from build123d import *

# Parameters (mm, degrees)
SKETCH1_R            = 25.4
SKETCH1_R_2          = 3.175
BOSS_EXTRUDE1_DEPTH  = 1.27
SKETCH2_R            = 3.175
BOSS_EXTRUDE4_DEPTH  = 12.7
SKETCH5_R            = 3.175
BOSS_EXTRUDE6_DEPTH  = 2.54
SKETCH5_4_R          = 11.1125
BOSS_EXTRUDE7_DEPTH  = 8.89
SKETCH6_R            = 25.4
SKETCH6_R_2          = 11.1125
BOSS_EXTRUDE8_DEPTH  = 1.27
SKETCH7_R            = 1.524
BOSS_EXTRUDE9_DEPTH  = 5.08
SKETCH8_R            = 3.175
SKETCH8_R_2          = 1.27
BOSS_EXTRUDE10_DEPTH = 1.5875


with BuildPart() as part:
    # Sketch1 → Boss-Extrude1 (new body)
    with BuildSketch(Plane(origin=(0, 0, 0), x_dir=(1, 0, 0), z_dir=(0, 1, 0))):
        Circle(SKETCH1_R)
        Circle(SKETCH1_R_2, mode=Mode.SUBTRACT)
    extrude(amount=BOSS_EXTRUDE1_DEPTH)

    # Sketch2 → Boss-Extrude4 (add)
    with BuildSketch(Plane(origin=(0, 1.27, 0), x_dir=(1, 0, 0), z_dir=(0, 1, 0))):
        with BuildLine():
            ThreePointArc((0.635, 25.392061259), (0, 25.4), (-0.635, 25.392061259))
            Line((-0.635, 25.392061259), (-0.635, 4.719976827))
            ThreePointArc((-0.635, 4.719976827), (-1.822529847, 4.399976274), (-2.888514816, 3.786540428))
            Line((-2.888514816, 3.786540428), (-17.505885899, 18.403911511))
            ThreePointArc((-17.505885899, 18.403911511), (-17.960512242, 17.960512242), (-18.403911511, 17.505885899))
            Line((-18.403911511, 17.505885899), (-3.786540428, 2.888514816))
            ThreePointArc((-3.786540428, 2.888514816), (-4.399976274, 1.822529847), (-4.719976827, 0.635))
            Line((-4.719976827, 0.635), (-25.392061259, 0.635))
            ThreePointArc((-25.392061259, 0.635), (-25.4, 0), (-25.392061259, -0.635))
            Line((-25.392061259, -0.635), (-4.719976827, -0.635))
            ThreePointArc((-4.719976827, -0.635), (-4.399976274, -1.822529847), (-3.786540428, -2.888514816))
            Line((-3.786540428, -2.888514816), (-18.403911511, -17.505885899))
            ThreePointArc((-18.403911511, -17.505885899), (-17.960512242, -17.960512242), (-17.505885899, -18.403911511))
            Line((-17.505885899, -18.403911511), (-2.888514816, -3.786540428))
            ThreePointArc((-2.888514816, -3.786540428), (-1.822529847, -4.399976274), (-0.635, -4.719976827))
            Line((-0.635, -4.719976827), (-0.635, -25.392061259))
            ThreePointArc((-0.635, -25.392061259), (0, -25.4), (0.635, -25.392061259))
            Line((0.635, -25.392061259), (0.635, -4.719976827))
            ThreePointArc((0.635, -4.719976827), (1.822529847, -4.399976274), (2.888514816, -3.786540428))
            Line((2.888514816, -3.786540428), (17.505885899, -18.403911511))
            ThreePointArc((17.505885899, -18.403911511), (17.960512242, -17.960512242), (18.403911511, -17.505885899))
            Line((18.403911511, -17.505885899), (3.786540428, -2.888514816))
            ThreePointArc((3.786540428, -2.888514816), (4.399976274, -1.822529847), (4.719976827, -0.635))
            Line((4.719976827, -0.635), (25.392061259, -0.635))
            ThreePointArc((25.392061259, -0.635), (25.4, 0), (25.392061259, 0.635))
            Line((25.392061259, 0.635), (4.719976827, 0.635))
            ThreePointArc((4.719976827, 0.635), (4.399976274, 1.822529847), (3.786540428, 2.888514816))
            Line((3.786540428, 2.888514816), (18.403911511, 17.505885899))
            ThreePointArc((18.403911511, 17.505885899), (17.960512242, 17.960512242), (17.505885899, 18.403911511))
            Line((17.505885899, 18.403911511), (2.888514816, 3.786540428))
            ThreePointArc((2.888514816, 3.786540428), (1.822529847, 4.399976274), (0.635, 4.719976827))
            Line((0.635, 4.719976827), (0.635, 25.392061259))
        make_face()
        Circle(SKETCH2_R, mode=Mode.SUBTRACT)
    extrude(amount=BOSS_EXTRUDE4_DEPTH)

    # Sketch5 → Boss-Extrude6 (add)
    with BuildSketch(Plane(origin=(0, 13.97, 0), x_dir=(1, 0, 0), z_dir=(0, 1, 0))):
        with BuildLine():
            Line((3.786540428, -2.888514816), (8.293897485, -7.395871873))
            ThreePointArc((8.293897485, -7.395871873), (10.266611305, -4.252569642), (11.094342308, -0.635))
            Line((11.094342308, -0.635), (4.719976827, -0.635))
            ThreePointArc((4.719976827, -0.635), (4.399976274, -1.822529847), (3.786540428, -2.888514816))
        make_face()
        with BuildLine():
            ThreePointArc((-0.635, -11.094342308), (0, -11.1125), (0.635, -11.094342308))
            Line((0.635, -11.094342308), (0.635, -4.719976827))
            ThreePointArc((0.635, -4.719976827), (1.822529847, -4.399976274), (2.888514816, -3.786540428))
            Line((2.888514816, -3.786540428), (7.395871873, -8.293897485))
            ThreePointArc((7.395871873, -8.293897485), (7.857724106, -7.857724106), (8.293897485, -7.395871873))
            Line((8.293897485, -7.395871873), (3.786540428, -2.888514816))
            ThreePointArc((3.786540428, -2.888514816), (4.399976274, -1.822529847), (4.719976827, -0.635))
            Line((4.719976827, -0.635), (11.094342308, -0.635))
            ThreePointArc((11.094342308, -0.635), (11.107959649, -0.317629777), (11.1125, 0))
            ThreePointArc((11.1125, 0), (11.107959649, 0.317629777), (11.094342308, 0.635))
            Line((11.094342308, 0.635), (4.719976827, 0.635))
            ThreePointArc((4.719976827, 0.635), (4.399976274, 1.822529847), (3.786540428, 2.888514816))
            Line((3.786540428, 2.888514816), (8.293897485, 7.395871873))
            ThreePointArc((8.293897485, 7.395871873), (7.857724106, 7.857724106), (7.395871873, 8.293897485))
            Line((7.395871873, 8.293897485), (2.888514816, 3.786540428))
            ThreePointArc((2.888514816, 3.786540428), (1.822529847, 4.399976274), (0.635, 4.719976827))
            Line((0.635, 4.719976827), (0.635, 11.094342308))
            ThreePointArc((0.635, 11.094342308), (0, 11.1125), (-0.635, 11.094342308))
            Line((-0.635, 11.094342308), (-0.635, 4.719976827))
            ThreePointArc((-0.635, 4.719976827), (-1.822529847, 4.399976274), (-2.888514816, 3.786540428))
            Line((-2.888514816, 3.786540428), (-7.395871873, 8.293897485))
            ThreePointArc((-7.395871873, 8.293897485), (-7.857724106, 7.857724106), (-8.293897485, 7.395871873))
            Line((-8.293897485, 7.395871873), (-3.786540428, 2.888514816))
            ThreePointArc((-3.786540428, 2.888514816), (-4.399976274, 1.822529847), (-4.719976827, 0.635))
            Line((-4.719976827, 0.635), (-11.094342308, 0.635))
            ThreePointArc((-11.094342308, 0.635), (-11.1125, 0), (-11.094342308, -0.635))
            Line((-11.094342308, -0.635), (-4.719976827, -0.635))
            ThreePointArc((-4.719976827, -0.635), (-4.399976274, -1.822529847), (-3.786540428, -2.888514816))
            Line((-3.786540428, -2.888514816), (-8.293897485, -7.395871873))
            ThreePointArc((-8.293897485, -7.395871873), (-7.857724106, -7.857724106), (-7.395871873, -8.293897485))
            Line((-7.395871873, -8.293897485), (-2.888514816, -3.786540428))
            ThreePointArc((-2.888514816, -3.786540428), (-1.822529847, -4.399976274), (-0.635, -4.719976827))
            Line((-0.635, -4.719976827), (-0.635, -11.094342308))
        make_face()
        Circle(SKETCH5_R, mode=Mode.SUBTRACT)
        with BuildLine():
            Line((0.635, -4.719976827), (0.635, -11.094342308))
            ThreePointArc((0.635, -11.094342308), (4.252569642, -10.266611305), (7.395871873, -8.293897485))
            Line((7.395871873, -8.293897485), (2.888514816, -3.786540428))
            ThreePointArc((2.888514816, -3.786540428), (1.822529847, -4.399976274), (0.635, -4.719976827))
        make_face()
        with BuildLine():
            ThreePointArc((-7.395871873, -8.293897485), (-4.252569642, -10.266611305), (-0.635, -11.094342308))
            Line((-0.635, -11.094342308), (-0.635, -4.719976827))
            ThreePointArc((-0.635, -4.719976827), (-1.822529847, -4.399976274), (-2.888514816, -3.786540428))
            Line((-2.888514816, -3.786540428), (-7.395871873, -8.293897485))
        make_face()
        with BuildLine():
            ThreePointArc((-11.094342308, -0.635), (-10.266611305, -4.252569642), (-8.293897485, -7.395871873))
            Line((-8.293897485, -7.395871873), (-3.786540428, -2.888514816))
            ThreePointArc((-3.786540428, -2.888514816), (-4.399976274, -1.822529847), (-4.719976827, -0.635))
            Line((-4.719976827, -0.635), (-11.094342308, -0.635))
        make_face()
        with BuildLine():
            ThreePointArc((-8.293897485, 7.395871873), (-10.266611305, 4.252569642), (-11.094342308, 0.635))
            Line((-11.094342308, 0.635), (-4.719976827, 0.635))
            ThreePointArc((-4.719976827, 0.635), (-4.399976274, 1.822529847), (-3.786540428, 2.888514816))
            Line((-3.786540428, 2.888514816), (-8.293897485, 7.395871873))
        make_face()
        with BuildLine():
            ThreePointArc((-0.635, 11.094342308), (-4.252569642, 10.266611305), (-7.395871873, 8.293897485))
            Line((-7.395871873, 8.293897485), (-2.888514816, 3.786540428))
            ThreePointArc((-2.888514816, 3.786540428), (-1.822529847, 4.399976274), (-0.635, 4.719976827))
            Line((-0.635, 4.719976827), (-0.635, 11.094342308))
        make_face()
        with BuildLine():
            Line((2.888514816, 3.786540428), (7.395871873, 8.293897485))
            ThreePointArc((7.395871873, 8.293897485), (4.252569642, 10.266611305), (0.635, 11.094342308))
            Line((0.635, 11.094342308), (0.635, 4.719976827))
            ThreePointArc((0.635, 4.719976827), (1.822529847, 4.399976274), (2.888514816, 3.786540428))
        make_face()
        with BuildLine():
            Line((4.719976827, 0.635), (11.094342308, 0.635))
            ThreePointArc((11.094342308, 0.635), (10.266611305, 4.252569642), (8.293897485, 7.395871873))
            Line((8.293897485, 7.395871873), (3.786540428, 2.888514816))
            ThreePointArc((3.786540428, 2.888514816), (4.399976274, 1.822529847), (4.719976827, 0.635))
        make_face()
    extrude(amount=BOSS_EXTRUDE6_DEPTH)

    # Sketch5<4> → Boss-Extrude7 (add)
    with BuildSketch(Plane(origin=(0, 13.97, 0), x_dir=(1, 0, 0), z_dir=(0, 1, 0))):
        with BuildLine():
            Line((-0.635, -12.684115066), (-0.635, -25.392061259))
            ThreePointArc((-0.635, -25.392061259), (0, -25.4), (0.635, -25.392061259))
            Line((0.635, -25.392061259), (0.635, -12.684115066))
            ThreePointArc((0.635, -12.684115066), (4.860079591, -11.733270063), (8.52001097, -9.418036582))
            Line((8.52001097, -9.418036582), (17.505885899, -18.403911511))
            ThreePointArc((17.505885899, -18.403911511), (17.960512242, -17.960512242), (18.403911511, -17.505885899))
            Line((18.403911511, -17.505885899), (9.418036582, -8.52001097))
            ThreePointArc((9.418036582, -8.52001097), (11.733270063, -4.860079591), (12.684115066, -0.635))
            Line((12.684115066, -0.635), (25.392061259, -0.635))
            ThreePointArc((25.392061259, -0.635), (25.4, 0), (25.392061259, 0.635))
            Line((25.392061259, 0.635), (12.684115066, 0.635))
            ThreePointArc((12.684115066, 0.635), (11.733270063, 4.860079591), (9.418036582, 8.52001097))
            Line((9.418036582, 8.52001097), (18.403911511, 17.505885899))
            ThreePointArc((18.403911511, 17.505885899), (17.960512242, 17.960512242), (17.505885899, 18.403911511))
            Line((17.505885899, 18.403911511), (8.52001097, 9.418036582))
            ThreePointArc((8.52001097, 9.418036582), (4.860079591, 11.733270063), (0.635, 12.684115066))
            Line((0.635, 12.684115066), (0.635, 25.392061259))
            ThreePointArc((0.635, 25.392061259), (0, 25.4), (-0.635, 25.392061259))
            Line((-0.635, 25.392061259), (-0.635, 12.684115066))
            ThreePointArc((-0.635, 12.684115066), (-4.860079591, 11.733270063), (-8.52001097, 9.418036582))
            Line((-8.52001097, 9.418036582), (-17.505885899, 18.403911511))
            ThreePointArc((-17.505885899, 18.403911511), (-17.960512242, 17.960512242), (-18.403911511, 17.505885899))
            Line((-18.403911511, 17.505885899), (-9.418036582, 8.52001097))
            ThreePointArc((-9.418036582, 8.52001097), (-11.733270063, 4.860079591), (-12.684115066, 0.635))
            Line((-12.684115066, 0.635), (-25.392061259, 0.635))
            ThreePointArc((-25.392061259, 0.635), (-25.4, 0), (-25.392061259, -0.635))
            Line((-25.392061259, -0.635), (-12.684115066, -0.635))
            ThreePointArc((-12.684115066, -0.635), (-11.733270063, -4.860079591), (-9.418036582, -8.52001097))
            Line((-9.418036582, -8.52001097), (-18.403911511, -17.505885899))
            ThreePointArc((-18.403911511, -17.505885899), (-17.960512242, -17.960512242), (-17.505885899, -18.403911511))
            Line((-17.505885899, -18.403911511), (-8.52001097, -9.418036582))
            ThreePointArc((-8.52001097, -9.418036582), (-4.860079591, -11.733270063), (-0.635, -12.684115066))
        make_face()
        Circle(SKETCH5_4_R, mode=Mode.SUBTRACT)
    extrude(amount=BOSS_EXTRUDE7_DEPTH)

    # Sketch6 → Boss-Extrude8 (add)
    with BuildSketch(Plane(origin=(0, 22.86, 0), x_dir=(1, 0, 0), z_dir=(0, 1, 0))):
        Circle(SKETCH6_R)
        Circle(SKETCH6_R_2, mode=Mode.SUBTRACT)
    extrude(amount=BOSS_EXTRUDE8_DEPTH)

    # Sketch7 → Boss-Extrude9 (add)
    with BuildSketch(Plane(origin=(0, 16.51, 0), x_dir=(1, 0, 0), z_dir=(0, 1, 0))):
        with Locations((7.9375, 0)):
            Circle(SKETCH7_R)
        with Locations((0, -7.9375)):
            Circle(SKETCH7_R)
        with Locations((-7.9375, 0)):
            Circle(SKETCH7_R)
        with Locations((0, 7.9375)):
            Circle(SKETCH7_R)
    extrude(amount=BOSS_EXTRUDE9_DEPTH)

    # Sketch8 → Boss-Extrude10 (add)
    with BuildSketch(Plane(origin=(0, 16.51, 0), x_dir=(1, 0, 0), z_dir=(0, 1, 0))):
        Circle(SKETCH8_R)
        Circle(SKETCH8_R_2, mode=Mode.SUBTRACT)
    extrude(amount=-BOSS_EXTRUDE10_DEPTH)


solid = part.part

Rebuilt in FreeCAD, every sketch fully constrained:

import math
import FreeCAD as App
import Part
import Sketcher
from FreeCAD import Vector
Q = App.Units.Quantity

doc = App.newDocument("Part")
body = doc.addObject("PartDesign::Body", "Body")

sketch1 = body.newObject("Sketcher::SketchObject", "Sketch")
sketch1.AttachmentSupport = (doc.getObject("XZ_Plane"), [""])
sketch1.MapMode = "FlatFace"
sketch1.addGeometry(Part.Circle(Vector(0, 0, 0), Vector(0, 0, 1), 25.4), False)
sketch1.addGeometry(Part.Circle(Vector(0, 0, 0), Vector(0, 0, 1), 3.2), False)
sketch1.addConstraint(Sketcher.Constraint("Coincident", 0, 3, -1, 1))
sketch1.addConstraint(Sketcher.Constraint("Coincident", 1, 3, -1, 1))
sketch1.addConstraint(Sketcher.Constraint("Diameter", 0, Q("2 in")))
sketch1.addConstraint(Sketcher.Constraint("Diameter", 1, Q("0.25 in")))
pad1 = body.newObject("PartDesign::Pad", "Pad")
pad1.Profile = sketch1
pad1.Length = Q("0.05 in")
pad1.Reversed = True

sketch2 = body.newObject("Sketcher::SketchObject", "Sketch001")
sketch2.AttachmentSupport = (doc.getObject("XZ_Plane"), [""])
sketch2.MapMode = "FlatFace"
sketch2.AttachmentOffset = App.Placement(Vector(0, 0, -0.05 * 25.4), App.Rotation())
sketch2.addGeometry(Part.ArcOfCircle(Part.Circle(Vector(0, 0, 0), Vector(0, 0, 1), 25.4), math.radians(-91.43), math.radians(-88.57)), False)
sketch2.addGeometry(Part.LineSegment(Vector(-0.6, -25.4, 0), Vector(-0.6, -4.7, 0)), False)
sketch2.addGeometry(Part.ArcOfCircle(Part.Circle(Vector(0, 0, 0), Vector(0, 0, 1), 4.8), math.radians(-127), math.radians(-98)), False)
sketch2.addGeometry(Part.LineSegment(Vector(-2.9, -3.8, 0), Vector(-17.5, -18.4, 0)), False)
sketch2.addGeometry(Part.ArcOfCircle(Part.Circle(Vector(0, 0, 0), Vector(0, 0, 1), 25.4), math.radians(-136.43), math.radians(-133.57)), False)
sketch2.addGeometry(Part.LineSegment(Vector(-18.4, -17.5, 0), Vector(-3.8, -2.9, 0)), False)
sketch2.addGeometry(Part.ArcOfCircle(Part.Circle(Vector(0, 0, 0), Vector(0, 0, 1), 4.8), math.radians(-172), math.radians(-143)), False)
sketch2.addGeometry(Part.LineSegment(Vector(-4.7, -0.6, 0), Vector(-25.4, -0.6, 0)), False)
sketch2.addGeometry(Part.ArcOfCircle(Part.Circle(Vector(0, 0, 0), Vector(0, 0, 1), 25.4), math.radians(178.57), math.radians(181.43)), False)
sketch2.addGeometry(Part.LineSegment(Vector(-25.4, 0.6, 0), Vector(-4.7, 0.6, 0)), False)
sketch2.addGeometry(Part.ArcOfCircle(Part.Circle(Vector(0, 0, 0), Vector(0, 0, 1), 4.8), math.radians(143), math.radians(172)), False)
sketch2.addGeometry(Part.LineSegment(Vector(-3.8, 2.9, 0), Vector(-18.4, 17.5, 0)), False)
sketch2.addGeometry(Part.ArcOfCircle(Part.Circle(Vector(0, 0, 0), Vector(0, 0, 1), 25.4), math.radians(133.57), math.radians(136.43)), False)
sketch2.addGeometry(Part.LineSegment(Vector(-17.5, 18.4, 0), Vector(-2.9, 3.8, 0)), False)
sketch2.addGeometry(Part.ArcOfCircle(Part.Circle(Vector(0, 0, 0), Vector(0, 0, 1), 4.8), math.radians(98), math.radians(127)), False)
sketch2.addGeometry(Part.LineSegment(Vector(-0.6, 4.7, 0), Vector(-0.6, 25.4, 0)), False)
sketch2.addGeometry(Part.ArcOfCircle(Part.Circle(Vector(0, 0, 0), Vector(0, 0, 1), 25.4), math.radians(88.57), math.radians(91.43)), False)
sketch2.addGeometry(Part.LineSegment(Vector(0.6, 25.4, 0), Vector(0.6, 4.7, 0)), False)
sketch2.addGeometry(Part.ArcOfCircle(Part.Circle(Vector(0, 0, 0), Vector(0, 0, 1), 4.8), math.radians(53), math.radians(82)), False)
sketch2.addGeometry(Part.LineSegment(Vector(2.9, 3.8, 0), Vector(17.5, 18.4, 0)), False)
sketch2.addGeometry(Part.ArcOfCircle(Part.Circle(Vector(0, 0, 0), Vector(0, 0, 1), 25.4), math.radians(43.57), math.radians(46.43)), False)
sketch2.addGeometry(Part.LineSegment(Vector(18.4, 17.5, 0), Vector(3.8, 2.9, 0)), False)
sketch2.addGeometry(Part.ArcOfCircle(Part.Circle(Vector(0, 0, 0), Vector(0, 0, 1), 4.8), math.radians(8), math.radians(37)), False)
sketch2.addGeometry(Part.LineSegment(Vector(4.7, 0.6, 0), Vector(25.4, 0.6, 0)), False)
sketch2.addGeometry(Part.ArcOfCircle(Part.Circle(Vector(0, 0, 0), Vector(0, 0, 1), 25.4), math.radians(-1.43), math.radians(1.43)), False)
sketch2.addGeometry(Part.LineSegment(Vector(25.4, -0.6, 0), Vector(4.7, -0.6, 0)), False)
sketch2.addGeometry(Part.ArcOfCircle(Part.Circle(Vector(0, 0, 0), Vector(0, 0, 1), 4.8), math.radians(-37), math.radians(-8)), False)
sketch2.addGeometry(Part.LineSegment(Vector(3.8, -2.9, 0), Vector(18.4, -17.5, 0)), False)
sketch2.addGeometry(Part.ArcOfCircle(Part.Circle(Vector(0, 0, 0), Vector(0, 0, 1), 25.4), math.radians(-46.43), math.radians(-43.57)), False)
sketch2.addGeometry(Part.LineSegment(Vector(17.5, -18.4, 0), Vector(2.9, -3.8, 0)), False)
sketch2.addGeometry(Part.ArcOfCircle(Part.Circle(Vector(0, 0, 0), Vector(0, 0, 1), 4.8), math.radians(-82), math.radians(-53)), False)
sketch2.addGeometry(Part.LineSegment(Vector(0.6, -4.7, 0), Vector(0.6, -25.4, 0)), False)
sketch2.addGeometry(Part.Circle(Vector(0, 0, 0), Vector(0, 0, 1), 3.2), False)
sketch2.addConstraint(Sketcher.Constraint("Coincident", 0, 1, 1, 1))
sketch2.addConstraint(Sketcher.Constraint("Coincident", 1, 2, 2, 2))
sketch2.addConstraint(Sketcher.Constraint("Coincident", 2, 1, 3, 1))
sketch2.addConstraint(Sketcher.Constraint("Coincident", 3, 2, 4, 2))
sketch2.addConstraint(Sketcher.Constraint("Coincident", 4, 1, 5, 1))
sketch2.addConstraint(Sketcher.Constraint("Coincident", 5, 2, 6, 2))
sketch2.addConstraint(Sketcher.Constraint("Coincident", 6, 1, 7, 1))
sketch2.addConstraint(Sketcher.Constraint("Coincident", 7, 2, 8, 2))
sketch2.addConstraint(Sketcher.Constraint("Coincident", 8, 1, 9, 1))
sketch2.addConstraint(Sketcher.Constraint("Coincident", 9, 2, 10, 2))
sketch2.addConstraint(Sketcher.Constraint("Coincident", 10, 1, 11, 1))
sketch2.addConstraint(Sketcher.Constraint("Coincident", 11, 2, 12, 2))
sketch2.addConstraint(Sketcher.Constraint("Coincident", 12, 1, 13, 1))
sketch2.addConstraint(Sketcher.Constraint("Coincident", 13, 2, 14, 2))
sketch2.addConstraint(Sketcher.Constraint("Coincident", 14, 1, 15, 1))
sketch2.addConstraint(Sketcher.Constraint("Coincident", 15, 2, 16, 2))
sketch2.addConstraint(Sketcher.Constraint("Coincident", 16, 1, 17, 1))
sketch2.addConstraint(Sketcher.Constraint("Coincident", 17, 2, 18, 2))
sketch2.addConstraint(Sketcher.Constraint("Coincident", 18, 1, 19, 1))
sketch2.addConstraint(Sketcher.Constraint("Coincident", 19, 2, 20, 2))
sketch2.addConstraint(Sketcher.Constraint("Coincident", 20, 1, 21, 1))
sketch2.addConstraint(Sketcher.Constraint("Coincident", 21, 2, 22, 2))
sketch2.addConstraint(Sketcher.Constraint("Coincident", 22, 1, 23, 1))
sketch2.addConstraint(Sketcher.Constraint("Coincident", 23, 2, 24, 2))
sketch2.addConstraint(Sketcher.Constraint("Coincident", 24, 1, 25, 1))
sketch2.addConstraint(Sketcher.Constraint("Coincident", 25, 2, 26, 2))
sketch2.addConstraint(Sketcher.Constraint("Coincident", 26, 1, 27, 1))
sketch2.addConstraint(Sketcher.Constraint("Coincident", 27, 2, 28, 2))
sketch2.addConstraint(Sketcher.Constraint("Coincident", 28, 1, 29, 1))
sketch2.addConstraint(Sketcher.Constraint("Coincident", 29, 2, 30, 2))
sketch2.addConstraint(Sketcher.Constraint("Coincident", 30, 1, 31, 1))
sketch2.addConstraint(Sketcher.Constraint("Coincident", 31, 2, 0, 2))
sketch2.addConstraint(Sketcher.Constraint("Vertical", 1))
sketch2.addConstraint(Sketcher.Constraint("Horizontal", 7))
sketch2.addConstraint(Sketcher.Constraint("Horizontal", 9))
sketch2.addConstraint(Sketcher.Constraint("Vertical", 15))
sketch2.addConstraint(Sketcher.Constraint("Vertical", 17))
sketch2.addConstraint(Sketcher.Constraint("Horizontal", 23))
sketch2.addConstraint(Sketcher.Constraint("Horizontal", 25))
sketch2.addConstraint(Sketcher.Constraint("Vertical", 31))
sketch2.addConstraint(Sketcher.Constraint("Coincident", 0, 3, -1, 1))
sketch2.addConstraint(Sketcher.Constraint("Coincident", 2, 3, -1, 1))
sketch2.addConstraint(Sketcher.Constraint("Coincident", 4, 3, -1, 1))
sketch2.addConstraint(Sketcher.Constraint("Coincident", 6, 3, -1, 1))
sketch2.addConstraint(Sketcher.Constraint("Coincident", 8, 3, -1, 1))
sketch2.addConstraint(Sketcher.Constraint("Coincident", 10, 3, -1, 1))
sketch2.addConstraint(Sketcher.Constraint("Coincident", 12, 3, -1, 1))
sketch2.addConstraint(Sketcher.Constraint("Coincident", 14, 3, -1, 1))
sketch2.addConstraint(Sketcher.Constraint("Coincident", 16, 3, -1, 1))
sketch2.addConstraint(Sketcher.Constraint("Coincident", 18, 3, -1, 1))
sketch2.addConstraint(Sketcher.Constraint("Coincident", 20, 3, -1, 1))
sketch2.addConstraint(Sketcher.Constraint("Coincident", 22, 3, -1, 1))
sketch2.addConstraint(Sketcher.Constraint("Coincident", 24, 3, -1, 1))
sketch2.addConstraint(Sketcher.Constraint("Coincident", 26, 3, -1, 1))
sketch2.addConstraint(Sketcher.Constraint("Coincident", 28, 3, -1, 1))
sketch2.addConstraint(Sketcher.Constraint("Coincident", 30, 3, -1, 1))
sketch2.addConstraint(Sketcher.Constraint("Coincident", 32, 3, -1, 1))
sketch2.addConstraint(Sketcher.Constraint("Equal", 2, 6))
sketch2.addConstraint(Sketcher.Constraint("Equal", 0, 8))
sketch2.addConstraint(Sketcher.Constraint("Equal", 6, 10))
sketch2.addConstraint(Sketcher.Constraint("Equal", 4, 12))
sketch2.addConstraint(Sketcher.Constraint("Equal", 10, 14))
sketch2.addConstraint(Sketcher.Constraint("Equal", 8, 16))
sketch2.addConstraint(Sketcher.Constraint("Equal", 14, 18))
sketch2.addConstraint(Sketcher.Constraint("Equal", 12, 20))
sketch2.addConstraint(Sketcher.Constraint("Equal", 18, 22))
sketch2.addConstraint(Sketcher.Constraint("Equal", 16, 24))
sketch2.addConstraint(Sketcher.Constraint("Equal", 22, 26))
sketch2.addConstraint(Sketcher.Constraint("Equal", 20, 28))
sketch2.addConstraint(Sketcher.Constraint("Equal", 26, 30))
sketch2.addConstraint(Sketcher.Constraint("Parallel", 3, 5))
sketch2.addConstraint(Sketcher.Constraint("Perpendicular", 5, 11))
sketch2.addConstraint(Sketcher.Constraint("Parallel", 11, 13))
sketch2.addConstraint(Sketcher.Constraint("Perpendicular", 13, 19))
sketch2.addConstraint(Sketcher.Constraint("Parallel", 19, 21))
sketch2.addConstraint(Sketcher.Constraint("Perpendicular", 21, 27))
sketch2.addConstraint(Sketcher.Constraint("Parallel", 27, 29))
sketch2.addConstraint(Sketcher.Constraint("Horizontal", 15, 2, 16, 1))
sketch2.addConstraint(Sketcher.Constraint("Horizontal", 13, 2, 18, 1))
sketch2.addConstraint(Sketcher.Constraint("Horizontal", 12, 1, 19, 2))
sketch2.addConstraint(Sketcher.Constraint("Horizontal", 11, 2, 20, 1))
sketch2.addConstraint(Sketcher.Constraint("Horizontal", 9, 2, 22, 1))
sketch2.addConstraint(Sketcher.Constraint("Horizontal", 7, 2, 24, 1))
sketch2.addConstraint(Sketcher.Constraint("Horizontal", 5, 2, 26, 1))
sketch2.addConstraint(Sketcher.Constraint("Horizontal", 3, 2, 28, 1))
sketch2.addConstraint(Sketcher.Constraint("Horizontal", 1, 2, 30, 1))
sketch2.addConstraint(Sketcher.Constraint("Vertical", 7, 2, 8, 1))
sketch2.addConstraint(Sketcher.Constraint("Vertical", 5, 2, 10, 1))
sketch2.addConstraint(Sketcher.Constraint("Vertical", 3, 2, 12, 1))
sketch2.addConstraint(Sketcher.Constraint("Vertical", 1, 2, 14, 1))
sketch2.addConstraint(Sketcher.Constraint("Equal", 25, 1))
sketch2.addConstraint(Sketcher.Constraint("Equal", 3, 5))
sketch2.addConstraint(Sketcher.Constraint("Radius", 0, Q("1 in")))
sketch2.addConstraint(Sketcher.Constraint("Radius", 4, Q("1.0000001 in")))
sketch2.addConstraint(Sketcher.Constraint("Diameter", 32, Q("0.25 in")))
sketch2.addConstraint(Sketcher.Constraint("Radius", 2, Q("0.1875 in")))
sketch2.addConstraint(Sketcher.Constraint("DistanceY", 7, 2, 8, 1, Q("0.05 in")))
sketch2.addConstraint(Sketcher.Constraint("DistanceY", 2, 1, -1, 1, Q("3.78654 mm")))
pad2 = body.newObject("PartDesign::Pad", "Pad001")
pad2.Profile = sketch2
pad2.Length = Q("0.5 in")
pad2.Reversed = True

sketch3 = body.newObject("Sketcher::SketchObject", "Sketch002")
sketch3.AttachmentSupport = (doc.getObject("XZ_Plane"), [""])
sketch3.MapMode = "FlatFace"
sketch3.AttachmentOffset = App.Placement(Vector(0, 0, -0.55 * 25.4), App.Rotation())
sketch3.addGeometry(Part.ArcOfCircle(Part.Circle(Vector(0, 0, 0), Vector(0, 0, 1), 11.1), math.radians(3), math.radians(42)), False)
sketch3.addGeometry(Part.ArcOfCircle(Part.Circle(Vector(0, 0, 0), Vector(0, 0, 1), 11.1), math.radians(0), math.radians(3.28)), False)
sketch3.addGeometry(Part.ArcOfCircle(Part.Circle(Vector(0, 0, 0), Vector(0, 0, 1), 11.1), math.radians(-3.28), math.radians(0)), False)
sketch3.addGeometry(Part.ArcOfCircle(Part.Circle(Vector(0, 0, 0), Vector(0, 0, 1), 11.1), math.radians(-42), math.radians(-3)), False)
sketch3.addGeometry(Part.ArcOfCircle(Part.Circle(Vector(0, 0, 0), Vector(0, 0, 1), 11.1), math.radians(-48.28), math.radians(-41.72)), False)
sketch3.addGeometry(Part.ArcOfCircle(Part.Circle(Vector(0, 0, 0), Vector(0, 0, 1), 11.1), math.radians(-87), math.radians(-48)), False)
sketch3.addGeometry(Part.ArcOfCircle(Part.Circle(Vector(0, 0, 0), Vector(0, 0, 1), 11.1), math.radians(-93.28), math.radians(-86.72)), False)
sketch3.addGeometry(Part.ArcOfCircle(Part.Circle(Vector(0, 0, 0), Vector(0, 0, 1), 11.1), math.radians(-132), math.radians(-93)), False)
sketch3.addGeometry(Part.ArcOfCircle(Part.Circle(Vector(0, 0, 0), Vector(0, 0, 1), 11.1), math.radians(-138.28), math.radians(-131.72)), False)
sketch3.addGeometry(Part.ArcOfCircle(Part.Circle(Vector(0, 0, 0), Vector(0, 0, 1), 11.1), math.radians(-177), math.radians(-138)), False)
sketch3.addGeometry(Part.ArcOfCircle(Part.Circle(Vector(0, 0, 0), Vector(0, 0, 1), 11.1), math.radians(176.72), math.radians(183.28)), False)
sketch3.addGeometry(Part.ArcOfCircle(Part.Circle(Vector(0, 0, 0), Vector(0, 0, 1), 11.1), math.radians(138), math.radians(177)), False)
sketch3.addGeometry(Part.ArcOfCircle(Part.Circle(Vector(0, 0, 0), Vector(0, 0, 1), 11.1), math.radians(131.72), math.radians(138.28)), False)
sketch3.addGeometry(Part.ArcOfCircle(Part.Circle(Vector(0, 0, 0), Vector(0, 0, 1), 11.1), math.radians(93), math.radians(132)), False)
sketch3.addGeometry(Part.ArcOfCircle(Part.Circle(Vector(0, 0, 0), Vector(0, 0, 1), 11.1), math.radians(86.72), math.radians(93.28)), False)
sketch3.addGeometry(Part.ArcOfCircle(Part.Circle(Vector(0, 0, 0), Vector(0, 0, 1), 11.1), math.radians(48), math.radians(87)), False)
sketch3.addGeometry(Part.ArcOfCircle(Part.Circle(Vector(0, 0, 0), Vector(0, 0, 1), 11.1), math.radians(41.72), math.radians(48.28)), False)
sketch3.addGeometry(Part.Circle(Vector(0, 0, 0), Vector(0, 0, 1), 3.2), False)
sketch3.addConstraint(Sketcher.Constraint("Tangent", 0, 1, 1, 2))
sketch3.addConstraint(Sketcher.Constraint("Tangent", 1, 1, 2, 2))
sketch3.addConstraint(Sketcher.Constraint("Tangent", 2, 1, 3, 2))
sketch3.addConstraint(Sketcher.Constraint("Tangent", 3, 1, 4, 2))
sketch3.addConstraint(Sketcher.Constraint("Tangent", 4, 1, 5, 2))
sketch3.addConstraint(Sketcher.Constraint("Tangent", 5, 1, 6, 2))
sketch3.addConstraint(Sketcher.Constraint("Tangent", 6, 1, 7, 2))
sketch3.addConstraint(Sketcher.Constraint("Tangent", 7, 1, 8, 2))
sketch3.addConstraint(Sketcher.Constraint("Tangent", 8, 1, 9, 2))
sketch3.addConstraint(Sketcher.Constraint("Tangent", 9, 1, 10, 2))
sketch3.addConstraint(Sketcher.Constraint("Tangent", 10, 1, 11, 2))
sketch3.addConstraint(Sketcher.Constraint("Tangent", 11, 1, 12, 2))
sketch3.addConstraint(Sketcher.Constraint("Tangent", 12, 1, 13, 2))
sketch3.addConstraint(Sketcher.Constraint("Tangent", 13, 1, 14, 2))
sketch3.addConstraint(Sketcher.Constraint("Tangent", 14, 1, 15, 2))
sketch3.addConstraint(Sketcher.Constraint("Tangent", 15, 1, 16, 2))
sketch3.addConstraint(Sketcher.Constraint("Tangent", 16, 1, 0, 2))
sketch3.addConstraint(Sketcher.Constraint("Coincident", 0, 3, -1, 1))
sketch3.addConstraint(Sketcher.Constraint("Coincident", 2, 3, -1, 1))
sketch3.addConstraint(Sketcher.Constraint("Coincident", 4, 3, -1, 1))
sketch3.addConstraint(Sketcher.Constraint("Coincident", 6, 3, -1, 1))
sketch3.addConstraint(Sketcher.Constraint("Coincident", 8, 3, -1, 1))
sketch3.addConstraint(Sketcher.Constraint("Coincident", 10, 3, -1, 1))
sketch3.addConstraint(Sketcher.Constraint("Coincident", 12, 3, -1, 1))
sketch3.addConstraint(Sketcher.Constraint("Coincident", 14, 3, -1, 1))
sketch3.addConstraint(Sketcher.Constraint("Coincident", 17, 3, -1, 1))
sketch3.addConstraint(Sketcher.Constraint("PointOnObject", 1, 1, -1))
sketch3.addConstraint(Sketcher.Constraint("Horizontal", 5, 1, 6, 1))
sketch3.addConstraint(Sketcher.Constraint("Horizontal", 4, 1, 7, 1))
sketch3.addConstraint(Sketcher.Constraint("Horizontal", 3, 1, 8, 1))
sketch3.addConstraint(Sketcher.Constraint("Horizontal", 2, 1, 9, 1))
sketch3.addConstraint(Sketcher.Constraint("Horizontal", 0, 1, 10, 1))
sketch3.addConstraint(Sketcher.Constraint("Horizontal", 13, 1, 14, 1))
sketch3.addConstraint(Sketcher.Constraint("Horizontal", 12, 1, 15, 1))
sketch3.addConstraint(Sketcher.Constraint("Horizontal", 11, 1, 16, 1))
sketch3.addConstraint(Sketcher.Constraint("Vertical", 0, 1, 2, 1))
sketch3.addConstraint(Sketcher.Constraint("Vertical", 8, 1, 11, 1))
sketch3.addConstraint(Sketcher.Constraint("Vertical", 7, 1, 12, 1))
sketch3.addConstraint(Sketcher.Constraint("Vertical", 6, 1, 13, 1))
sketch3.addConstraint(Sketcher.Constraint("Diameter", 17, Q("0.25 in")))
sketch3.addConstraint(Sketcher.Constraint("Radius", 0, Q("0.4375 in")))
sketch3.addConstraint(Sketcher.Constraint("DistanceY", 2, 1, 0, 1, Q("0.05 in")))
sketch3.addConstraint(Sketcher.Constraint("DistanceX", 6, 1, 5, 1, Q("0.05 in")))
sketch3.addConstraint(Sketcher.Constraint("DistanceY", 3, 1, -1, 1, Q("7.395872 mm")))
sketch3.addConstraint(Sketcher.Constraint("DistanceX", -1, 1, 4, 1, Q("7.395872 mm")))
pad3 = body.newObject("PartDesign::Pad", "Pad002")
pad3.Profile = sketch3
pad3.Length = Q("0.1 in")
pad3.Reversed = True

sketch4 = body.newObject("Sketcher::SketchObject", "Sketch003")
sketch4.AttachmentSupport = (doc.getObject("XZ_Plane"), [""])
sketch4.MapMode = "FlatFace"
sketch4.AttachmentOffset = App.Placement(Vector(0, 0, -0.55 * 25.4), App.Rotation())
sketch4.addGeometry(Part.LineSegment(Vector(-0.6, 12.7, 0), Vector(-0.6, 25.4, 0)), False)
sketch4.addGeometry(Part.ArcOfCircle(Part.Circle(Vector(0, 0, 0), Vector(0, 0, 1), 25.4), math.radians(88.57), math.radians(91.43)), False)
sketch4.addGeometry(Part.LineSegment(Vector(0.6, 25.4, 0), Vector(0.6, 12.7, 0)), False)
sketch4.addGeometry(Part.ArcOfCircle(Part.Circle(Vector(0, 0, 0), Vector(0, 0, 1), 12.7), math.radians(48), math.radians(87)), False)
sketch4.addGeometry(Part.LineSegment(Vector(8.5, 9.4, 0), Vector(17.5, 18.4, 0)), False)
sketch4.addGeometry(Part.ArcOfCircle(Part.Circle(Vector(0, 0, 0), Vector(0, 0, 1), 25.4), math.radians(43.57), math.radians(46.43)), False)
sketch4.addGeometry(Part.LineSegment(Vector(18.4, 17.5, 0), Vector(9.4, 8.5, 0)), False)
sketch4.addGeometry(Part.ArcOfCircle(Part.Circle(Vector(0, 0, 0), Vector(0, 0, 1), 12.7), math.radians(3), math.radians(42)), False)
sketch4.addGeometry(Part.LineSegment(Vector(12.7, 0.6, 0), Vector(25.4, 0.6, 0)), False)
sketch4.addGeometry(Part.ArcOfCircle(Part.Circle(Vector(0, 0, 0), Vector(0, 0, 1), 25.4), math.radians(-1.43), math.radians(1.43)), False)
sketch4.addGeometry(Part.LineSegment(Vector(25.4, -0.6, 0), Vector(12.7, -0.6, 0)), False)
sketch4.addGeometry(Part.ArcOfCircle(Part.Circle(Vector(0, 0, 0), Vector(0, 0, 1), 12.7), math.radians(-42), math.radians(-3)), False)
sketch4.addGeometry(Part.LineSegment(Vector(9.4, -8.5, 0), Vector(18.4, -17.5, 0)), False)
sketch4.addGeometry(Part.ArcOfCircle(Part.Circle(Vector(0, 0, 0), Vector(0, 0, 1), 25.4), math.radians(-46.43), math.radians(-43.57)), False)
sketch4.addGeometry(Part.LineSegment(Vector(17.5, -18.4, 0), Vector(8.5, -9.4, 0)), False)
sketch4.addGeometry(Part.ArcOfCircle(Part.Circle(Vector(0, 0, 0), Vector(0, 0, 1), 12.7), math.radians(-87), math.radians(-48)), False)
sketch4.addGeometry(Part.LineSegment(Vector(0.6, -12.7, 0), Vector(0.6, -25.4, 0)), False)
sketch4.addGeometry(Part.ArcOfCircle(Part.Circle(Vector(0, 0, 0), Vector(0, 0, 1), 25.4), math.radians(-91.43), math.radians(-88.57)), False)
sketch4.addGeometry(Part.LineSegment(Vector(-0.6, -25.4, 0), Vector(-0.6, -12.7, 0)), False)
sketch4.addGeometry(Part.ArcOfCircle(Part.Circle(Vector(0, 0, 0), Vector(0, 0, 1), 12.7), math.radians(-132), math.radians(-93)), False)
sketch4.addGeometry(Part.LineSegment(Vector(-8.5, -9.4, 0), Vector(-17.5, -18.4, 0)), False)
sketch4.addGeometry(Part.ArcOfCircle(Part.Circle(Vector(0, 0, 0), Vector(0, 0, 1), 25.4), math.radians(-136.43), math.radians(-133.57)), False)
sketch4.addGeometry(Part.LineSegment(Vector(-18.4, -17.5, 0), Vector(-9.4, -8.5, 0)), False)
sketch4.addGeometry(Part.ArcOfCircle(Part.Circle(Vector(0, 0, 0), Vector(0, 0, 1), 12.7), math.radians(-177), math.radians(-138)), False)
sketch4.addGeometry(Part.LineSegment(Vector(-12.7, -0.6, 0), Vector(-25.4, -0.6, 0)), False)
sketch4.addGeometry(Part.ArcOfCircle(Part.Circle(Vector(0, 0, 0), Vector(0, 0, 1), 25.4), math.radians(178.57), math.radians(181.43)), False)
sketch4.addGeometry(Part.LineSegment(Vector(-25.4, 0.6, 0), Vector(-12.7, 0.6, 0)), False)
sketch4.addGeometry(Part.ArcOfCircle(Part.Circle(Vector(0, 0, 0), Vector(0, 0, 1), 12.7), math.radians(138), math.radians(177)), False)
sketch4.addGeometry(Part.LineSegment(Vector(-9.4, 8.5, 0), Vector(-18.4, 17.5, 0)), False)
sketch4.addGeometry(Part.ArcOfCircle(Part.Circle(Vector(0, 0, 0), Vector(0, 0, 1), 25.4), math.radians(133.57), math.radians(136.43)), False)
sketch4.addGeometry(Part.LineSegment(Vector(-17.5, 18.4, 0), Vector(-8.5, 9.4, 0)), False)
sketch4.addGeometry(Part.ArcOfCircle(Part.Circle(Vector(0, 0, 0), Vector(0, 0, 1), 12.7), math.radians(93), math.radians(132)), False)
sketch4.addGeometry(Part.Circle(Vector(0, 0, 0), Vector(0, 0, 1), 11.1), False)
sketch4.addConstraint(Sketcher.Constraint("Coincident", 0, 2, 1, 2))
sketch4.addConstraint(Sketcher.Constraint("Coincident", 1, 1, 2, 1))
sketch4.addConstraint(Sketcher.Constraint("Coincident", 2, 2, 3, 2))
sketch4.addConstraint(Sketcher.Constraint("Coincident", 3, 1, 4, 1))
sketch4.addConstraint(Sketcher.Constraint("Coincident", 4, 2, 5, 2))
sketch4.addConstraint(Sketcher.Constraint("Coincident", 5, 1, 6, 1))
sketch4.addConstraint(Sketcher.Constraint("Coincident", 6, 2, 7, 2))
sketch4.addConstraint(Sketcher.Constraint("Coincident", 7, 1, 8, 1))
sketch4.addConstraint(Sketcher.Constraint("Coincident", 8, 2, 9, 2))
sketch4.addConstraint(Sketcher.Constraint("Coincident", 9, 1, 10, 1))
sketch4.addConstraint(Sketcher.Constraint("Coincident", 10, 2, 11, 2))
sketch4.addConstraint(Sketcher.Constraint("Coincident", 11, 1, 12, 1))
sketch4.addConstraint(Sketcher.Constraint("Coincident", 12, 2, 13, 2))
sketch4.addConstraint(Sketcher.Constraint("Coincident", 13, 1, 14, 1))
sketch4.addConstraint(Sketcher.Constraint("Coincident", 14, 2, 15, 2))
sketch4.addConstraint(Sketcher.Constraint("Coincident", 15, 1, 16, 1))
sketch4.addConstraint(Sketcher.Constraint("Coincident", 16, 2, 17, 2))
sketch4.addConstraint(Sketcher.Constraint("Coincident", 17, 1, 18, 1))
sketch4.addConstraint(Sketcher.Constraint("Coincident", 18, 2, 19, 2))
sketch4.addConstraint(Sketcher.Constraint("Coincident", 19, 1, 20, 1))
sketch4.addConstraint(Sketcher.Constraint("Coincident", 20, 2, 21, 2))
sketch4.addConstraint(Sketcher.Constraint("Coincident", 21, 1, 22, 1))
sketch4.addConstraint(Sketcher.Constraint("Coincident", 22, 2, 23, 2))
sketch4.addConstraint(Sketcher.Constraint("Coincident", 23, 1, 24, 1))
sketch4.addConstraint(Sketcher.Constraint("Coincident", 24, 2, 25, 2))
sketch4.addConstraint(Sketcher.Constraint("Coincident", 25, 1, 26, 1))
sketch4.addConstraint(Sketcher.Constraint("Coincident", 26, 2, 27, 2))
sketch4.addConstraint(Sketcher.Constraint("Coincident", 27, 1, 28, 1))
sketch4.addConstraint(Sketcher.Constraint("Coincident", 28, 2, 29, 2))
sketch4.addConstraint(Sketcher.Constraint("Coincident", 29, 1, 30, 1))
sketch4.addConstraint(Sketcher.Constraint("Coincident", 30, 2, 31, 2))
sketch4.addConstraint(Sketcher.Constraint("Coincident", 31, 1, 0, 1))
sketch4.addConstraint(Sketcher.Constraint("Vertical", 0))
sketch4.addConstraint(Sketcher.Constraint("Vertical", 2))
sketch4.addConstraint(Sketcher.Constraint("Horizontal", 8))
sketch4.addConstraint(Sketcher.Constraint("Horizontal", 10))
sketch4.addConstraint(Sketcher.Constraint("Vertical", 16))
sketch4.addConstraint(Sketcher.Constraint("Vertical", 18))
sketch4.addConstraint(Sketcher.Constraint("Horizontal", 24))
sketch4.addConstraint(Sketcher.Constraint("Horizontal", 26))
sketch4.addConstraint(Sketcher.Constraint("Coincident", 1, 3, -1, 1))
sketch4.addConstraint(Sketcher.Constraint("Coincident", 3, 3, -1, 1))
sketch4.addConstraint(Sketcher.Constraint("Coincident", 5, 3, -1, 1))
sketch4.addConstraint(Sketcher.Constraint("Coincident", 7, 3, -1, 1))
sketch4.addConstraint(Sketcher.Constraint("Coincident", 9, 3, -1, 1))
sketch4.addConstraint(Sketcher.Constraint("Coincident", 11, 3, -1, 1))
sketch4.addConstraint(Sketcher.Constraint("Coincident", 13, 3, -1, 1))
sketch4.addConstraint(Sketcher.Constraint("Coincident", 15, 3, -1, 1))
sketch4.addConstraint(Sketcher.Constraint("Coincident", 17, 3, -1, 1))
sketch4.addConstraint(Sketcher.Constraint("Coincident", 19, 3, -1, 1))
sketch4.addConstraint(Sketcher.Constraint("Coincident", 21, 3, -1, 1))
sketch4.addConstraint(Sketcher.Constraint("Coincident", 23, 3, -1, 1))
sketch4.addConstraint(Sketcher.Constraint("Coincident", 25, 3, -1, 1))
sketch4.addConstraint(Sketcher.Constraint("Coincident", 27, 3, -1, 1))
sketch4.addConstraint(Sketcher.Constraint("Coincident", 29, 3, -1, 1))
sketch4.addConstraint(Sketcher.Constraint("Coincident", 31, 3, -1, 1))
sketch4.addConstraint(Sketcher.Constraint("Coincident", 32, 3, -1, 1))
sketch4.addConstraint(Sketcher.Constraint("Equal", 3, 7))
sketch4.addConstraint(Sketcher.Constraint("Equal", 1, 9))
sketch4.addConstraint(Sketcher.Constraint("Equal", 7, 11))
sketch4.addConstraint(Sketcher.Constraint("Equal", 5, 13))
sketch4.addConstraint(Sketcher.Constraint("Equal", 11, 15))
sketch4.addConstraint(Sketcher.Constraint("Equal", 9, 17))
sketch4.addConstraint(Sketcher.Constraint("Equal", 15, 19))
sketch4.addConstraint(Sketcher.Constraint("Equal", 13, 21))
sketch4.addConstraint(Sketcher.Constraint("Equal", 19, 23))
sketch4.addConstraint(Sketcher.Constraint("Equal", 17, 25))
sketch4.addConstraint(Sketcher.Constraint("Equal", 23, 27))
sketch4.addConstraint(Sketcher.Constraint("Equal", 21, 29))
sketch4.addConstraint(Sketcher.Constraint("Equal", 27, 31))
sketch4.addConstraint(Sketcher.Constraint("Parallel", 4, 6))
sketch4.addConstraint(Sketcher.Constraint("Perpendicular", 6, 12))
sketch4.addConstraint(Sketcher.Constraint("Parallel", 12, 14))
sketch4.addConstraint(Sketcher.Constraint("Perpendicular", 14, 20))
sketch4.addConstraint(Sketcher.Constraint("Parallel", 20, 22))
sketch4.addConstraint(Sketcher.Constraint("Perpendicular", 22, 28))
sketch4.addConstraint(Sketcher.Constraint("Parallel", 28, 30))
sketch4.addConstraint(Sketcher.Constraint("Horizontal", 0, 2, 1, 1))
sketch4.addConstraint(Sketcher.Constraint("Horizontal", 16, 2, 17, 1))
sketch4.addConstraint(Sketcher.Constraint("Horizontal", 14, 2, 19, 1))
sketch4.addConstraint(Sketcher.Constraint("Horizontal", 13, 1, 20, 2))
sketch4.addConstraint(Sketcher.Constraint("Horizontal", 12, 2, 21, 1))
sketch4.addConstraint(Sketcher.Constraint("Horizontal", 10, 2, 23, 1))
sketch4.addConstraint(Sketcher.Constraint("Horizontal", 8, 2, 25, 1))
sketch4.addConstraint(Sketcher.Constraint("Horizontal", 6, 2, 27, 1))
sketch4.addConstraint(Sketcher.Constraint("Horizontal", 4, 2, 29, 1))
sketch4.addConstraint(Sketcher.Constraint("Vertical", 8, 2, 9, 1))
sketch4.addConstraint(Sketcher.Constraint("Vertical", 6, 2, 11, 1))
sketch4.addConstraint(Sketcher.Constraint("Vertical", 4, 2, 13, 1))
sketch4.addConstraint(Sketcher.Constraint("Vertical", 2, 2, 15, 1))
sketch4.addConstraint(Sketcher.Constraint("Equal", 26, 0))
sketch4.addConstraint(Sketcher.Constraint("Equal", 4, 6))
sketch4.addConstraint(Sketcher.Constraint("Radius", 1, Q("1 in")))
sketch4.addConstraint(Sketcher.Constraint("Radius", 5, Q("1.0000001 in")))
sketch4.addConstraint(Sketcher.Constraint("Radius", 3, Q("0.5 in")))
sketch4.addConstraint(Sketcher.Constraint("Diameter", 32, Q("0.875 in")))
sketch4.addConstraint(Sketcher.Constraint("DistanceX", 0, 2, 1, 1, Q("0.05 in")))
sketch4.addConstraint(Sketcher.Constraint("DistanceX", 3, 1, 5, 1, Q("9.883901 mm")))
pad4 = body.newObject("PartDesign::Pad", "Pad003")
pad4.Profile = sketch4
pad4.Length = Q("0.35 in")
pad4.Reversed = True

sketch5 = body.newObject("Sketcher::SketchObject", "Sketch004")
sketch5.AttachmentSupport = (doc.getObject("XZ_Plane"), [""])
sketch5.MapMode = "FlatFace"
sketch5.AttachmentOffset = App.Placement(Vector(0, 0, -0.9 * 25.4), App.Rotation())
sketch5.addGeometry(Part.Circle(Vector(0, 0, 0), Vector(0, 0, 1), 25), False)
sketch5.addGeometry(Part.Circle(Vector(0, 0, 0), Vector(0, 0, 1), 11), False)
sketch5.addConstraint(Sketcher.Constraint("Coincident", 0, 3, -1, 1))
sketch5.addConstraint(Sketcher.Constraint("Coincident", 1, 3, -1, 1))
sketch5.addConstraint(Sketcher.Constraint("Diameter", 0, Q("2 in")))
sketch5.addConstraint(Sketcher.Constraint("Diameter", 1, Q("0.875 in")))
pad5 = body.newObject("PartDesign::Pad", "Pad004")
pad5.Profile = sketch5
pad5.Length = Q("0.05 in")
pad5.Reversed = True

sketch6 = body.newObject("Sketcher::SketchObject", "Sketch005")
sketch6.AttachmentSupport = (doc.getObject("XZ_Plane"), [""])
sketch6.MapMode = "FlatFace"
sketch6.AttachmentOffset = App.Placement(Vector(0, 0, -0.65 * 25.4), App.Rotation())
sketch6.addGeometry(Part.Circle(Vector(7.9, 0, 0), Vector(0, 0, 1), 1.5), False)
sketch6.addGeometry(Part.Circle(Vector(0, 7.9, 0), Vector(0, 0, 1), 1.5), False)
sketch6.addGeometry(Part.Circle(Vector(-7.9, 0, 0), Vector(0, 0, 1), 1.5), False)
sketch6.addGeometry(Part.Circle(Vector(0, -7.9, 0), Vector(0, 0, 1), 1.5), False)
sketch6.addConstraint(Sketcher.Constraint("Equal", 0, 1))
sketch6.addConstraint(Sketcher.Constraint("Equal", 1, 2))
sketch6.addConstraint(Sketcher.Constraint("Equal", 2, 3))
sketch6.addConstraint(Sketcher.Constraint("Symmetric", 0, 3, 2, 3, -1, 1))
sketch6.addConstraint(Sketcher.Constraint("Symmetric", 1, 3, 3, 3, -1, 1))
sketch6.addConstraint(Sketcher.Constraint("PointOnObject", 0, 3, -1))
sketch6.addConstraint(Sketcher.Constraint("PointOnObject", 1, 3, -2))
sketch6.addConstraint(Sketcher.Constraint("Diameter", 0, Q("0.12 in")))
sketch6.addConstraint(Sketcher.Constraint("DistanceX", -1, 1, 0, 3, Q("0.3125 in")))
sketch6.addConstraint(Sketcher.Constraint("DistanceY", -1, 1, 1, 3, Q("0.3125 in")))
pad6 = body.newObject("PartDesign::Pad", "Pad005")
pad6.Profile = sketch6
pad6.Length = Q("0.2 in")
pad6.Reversed = True

sketch7 = body.newObject("Sketcher::SketchObject", "Sketch006")
sketch7.AttachmentSupport = (doc.getObject("XZ_Plane"), [""])
sketch7.MapMode = "FlatFace"
sketch7.AttachmentOffset = App.Placement(Vector(0, 0, -0.65 * 25.4), App.Rotation())
sketch7.addGeometry(Part.Circle(Vector(0, 0, 0), Vector(0, 0, 1), 3.2), False)
sketch7.addGeometry(Part.Circle(Vector(0, 0, 0), Vector(0, 0, 1), 1.3), False)
sketch7.addConstraint(Sketcher.Constraint("Coincident", 0, 3, -1, 1))
sketch7.addConstraint(Sketcher.Constraint("Coincident", 1, 3, -1, 1))
sketch7.addConstraint(Sketcher.Constraint("Diameter", 1, Q("0.1 in")))
sketch7.addConstraint(Sketcher.Constraint("Diameter", 0, Q("0.25 in")))
pad7 = body.newObject("PartDesign::Pad", "Pad006")
pad7.Profile = sketch7
pad7.Length = Q("0.0625 in")

doc.recompute()
